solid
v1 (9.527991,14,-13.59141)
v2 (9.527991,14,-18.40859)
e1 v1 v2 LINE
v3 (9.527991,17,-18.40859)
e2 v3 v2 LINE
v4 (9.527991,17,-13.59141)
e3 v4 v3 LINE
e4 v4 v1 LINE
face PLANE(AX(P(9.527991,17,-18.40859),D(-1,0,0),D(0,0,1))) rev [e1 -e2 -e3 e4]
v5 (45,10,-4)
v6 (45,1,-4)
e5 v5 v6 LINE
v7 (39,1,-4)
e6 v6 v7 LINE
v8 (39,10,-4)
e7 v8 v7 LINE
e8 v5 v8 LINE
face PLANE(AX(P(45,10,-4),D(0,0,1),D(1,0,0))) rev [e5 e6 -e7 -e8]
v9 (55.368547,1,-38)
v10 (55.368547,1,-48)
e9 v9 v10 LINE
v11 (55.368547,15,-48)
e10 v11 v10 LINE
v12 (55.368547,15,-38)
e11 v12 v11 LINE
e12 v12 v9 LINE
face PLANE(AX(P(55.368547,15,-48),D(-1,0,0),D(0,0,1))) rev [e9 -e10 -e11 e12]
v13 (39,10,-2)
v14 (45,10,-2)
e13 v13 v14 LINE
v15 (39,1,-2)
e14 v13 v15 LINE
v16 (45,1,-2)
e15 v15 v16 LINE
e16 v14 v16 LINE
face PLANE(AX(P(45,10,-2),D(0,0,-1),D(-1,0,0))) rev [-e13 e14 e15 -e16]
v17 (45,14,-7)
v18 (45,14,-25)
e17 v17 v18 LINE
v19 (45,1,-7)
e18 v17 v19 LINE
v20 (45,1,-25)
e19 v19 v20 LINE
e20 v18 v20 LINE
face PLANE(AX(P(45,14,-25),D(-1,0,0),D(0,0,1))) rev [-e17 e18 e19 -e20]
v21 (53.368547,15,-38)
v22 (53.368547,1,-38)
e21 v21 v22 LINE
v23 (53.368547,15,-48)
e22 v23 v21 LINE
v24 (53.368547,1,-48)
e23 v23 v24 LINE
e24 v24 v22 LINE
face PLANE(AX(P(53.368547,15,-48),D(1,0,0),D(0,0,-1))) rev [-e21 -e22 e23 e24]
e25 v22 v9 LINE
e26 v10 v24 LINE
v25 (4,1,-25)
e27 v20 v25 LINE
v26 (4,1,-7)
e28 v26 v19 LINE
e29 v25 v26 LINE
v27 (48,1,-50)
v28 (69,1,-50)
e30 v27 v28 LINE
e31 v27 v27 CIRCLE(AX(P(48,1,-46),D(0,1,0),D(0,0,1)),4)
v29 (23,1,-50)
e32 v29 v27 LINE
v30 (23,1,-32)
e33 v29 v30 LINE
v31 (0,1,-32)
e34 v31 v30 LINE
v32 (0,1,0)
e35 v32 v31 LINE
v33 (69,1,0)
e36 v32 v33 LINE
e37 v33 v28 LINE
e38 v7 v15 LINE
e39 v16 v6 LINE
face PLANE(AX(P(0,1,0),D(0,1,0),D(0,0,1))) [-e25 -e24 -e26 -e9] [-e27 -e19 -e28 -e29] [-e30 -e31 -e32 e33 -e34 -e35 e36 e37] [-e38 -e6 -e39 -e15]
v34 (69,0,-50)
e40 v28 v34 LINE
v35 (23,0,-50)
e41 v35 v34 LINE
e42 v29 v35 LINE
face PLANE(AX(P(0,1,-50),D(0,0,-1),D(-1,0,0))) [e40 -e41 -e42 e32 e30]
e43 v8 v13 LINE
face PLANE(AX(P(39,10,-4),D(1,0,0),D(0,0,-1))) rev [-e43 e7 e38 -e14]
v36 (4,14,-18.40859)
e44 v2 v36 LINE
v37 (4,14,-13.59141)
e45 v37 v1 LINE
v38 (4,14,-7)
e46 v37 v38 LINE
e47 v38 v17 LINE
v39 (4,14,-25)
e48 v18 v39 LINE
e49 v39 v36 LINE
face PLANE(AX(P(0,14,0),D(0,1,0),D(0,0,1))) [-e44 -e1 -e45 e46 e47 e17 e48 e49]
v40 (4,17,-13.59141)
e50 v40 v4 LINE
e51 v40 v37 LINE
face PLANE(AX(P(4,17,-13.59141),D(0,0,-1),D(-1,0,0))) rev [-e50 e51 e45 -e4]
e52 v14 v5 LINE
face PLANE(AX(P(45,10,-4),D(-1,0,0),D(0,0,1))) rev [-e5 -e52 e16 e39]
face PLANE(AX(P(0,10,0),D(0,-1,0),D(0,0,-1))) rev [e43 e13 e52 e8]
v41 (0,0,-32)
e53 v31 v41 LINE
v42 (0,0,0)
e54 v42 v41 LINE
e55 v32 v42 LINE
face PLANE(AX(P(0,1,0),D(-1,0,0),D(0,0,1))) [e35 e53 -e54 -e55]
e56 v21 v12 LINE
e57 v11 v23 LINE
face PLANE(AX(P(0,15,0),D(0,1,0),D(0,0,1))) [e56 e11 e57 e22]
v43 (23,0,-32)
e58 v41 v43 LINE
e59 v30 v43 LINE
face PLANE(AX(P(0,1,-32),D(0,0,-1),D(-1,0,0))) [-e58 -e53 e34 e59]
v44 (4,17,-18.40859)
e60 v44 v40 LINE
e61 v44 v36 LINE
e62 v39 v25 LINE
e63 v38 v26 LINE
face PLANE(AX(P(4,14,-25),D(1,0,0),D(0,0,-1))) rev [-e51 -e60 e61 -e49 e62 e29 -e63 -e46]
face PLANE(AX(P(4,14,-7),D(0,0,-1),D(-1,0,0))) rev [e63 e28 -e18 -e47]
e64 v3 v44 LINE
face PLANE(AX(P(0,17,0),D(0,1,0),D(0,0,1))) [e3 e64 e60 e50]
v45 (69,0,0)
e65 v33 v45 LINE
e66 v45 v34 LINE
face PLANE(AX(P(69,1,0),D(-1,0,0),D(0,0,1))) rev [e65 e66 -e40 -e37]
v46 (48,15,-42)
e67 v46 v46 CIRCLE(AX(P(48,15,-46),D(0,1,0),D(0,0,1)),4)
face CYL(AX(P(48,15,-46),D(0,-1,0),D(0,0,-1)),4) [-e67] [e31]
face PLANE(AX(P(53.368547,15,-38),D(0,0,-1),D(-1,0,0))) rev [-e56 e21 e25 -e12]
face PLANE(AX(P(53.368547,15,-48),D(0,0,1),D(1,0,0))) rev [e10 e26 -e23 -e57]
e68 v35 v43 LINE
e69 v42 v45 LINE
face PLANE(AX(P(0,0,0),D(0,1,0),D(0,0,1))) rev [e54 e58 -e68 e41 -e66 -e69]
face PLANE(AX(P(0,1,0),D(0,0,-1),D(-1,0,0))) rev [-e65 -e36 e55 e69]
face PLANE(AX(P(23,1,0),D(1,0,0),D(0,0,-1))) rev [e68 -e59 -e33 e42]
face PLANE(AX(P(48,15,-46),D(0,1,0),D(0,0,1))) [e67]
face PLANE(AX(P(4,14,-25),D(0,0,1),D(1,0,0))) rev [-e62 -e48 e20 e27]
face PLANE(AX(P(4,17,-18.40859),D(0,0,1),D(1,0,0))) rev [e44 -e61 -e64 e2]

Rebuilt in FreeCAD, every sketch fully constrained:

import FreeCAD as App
import Part
import Sketcher
from FreeCAD import Vector
Q = App.Units.Quantity


def add_polygon(sketch, points):
    """Adds a closed chain of lines whose ends are joined by coincident constraints."""
    first, n = sketch.GeometryCount, len(points)
    for a, b in zip(points, points[1:] + points[:1]):
        sketch.addGeometry(Part.LineSegment(App.Vector(*a, 0), App.Vector(*b, 0)), False)
    for i in range(n):
        sketch.addConstraint(Sketcher.Constraint("Coincident", first + i, 2, first + (i + 1) % n, 1))

doc = App.newDocument("Part")
body = doc.addObject("PartDesign::Body", "Body")

# Sketch on XZ plane
sketch1 = body.newObject("Sketcher::SketchObject", "Sketch")
sketch1.AttachmentSupport = (doc.getObject("XZ_Plane"), [""])
sketch1.MapMode = "FlatFace"
add_polygon(sketch1, [(0, -32), (0, 0), (69, 0), (69, -50), (23, -50), (23, -32)])  # lines 0-5
sketch1.addConstraint([
    Sketcher.Constraint("Vertical", 0),
    Sketcher.Constraint("Horizontal", 1),
    Sketcher.Constraint("Vertical", 2),
    Sketcher.Constraint("Horizontal", 3),
    Sketcher.Constraint("Vertical", 4),
    Sketcher.Constraint("Horizontal", 5),
    Sketcher.Constraint("Coincident", 0, 2, -1, 1),
    Sketcher.Constraint("DistanceX", 1, 1, 1, 2, Q("69 mm")),
    Sketcher.Constraint("DistanceX", 3, 2, 3, 1, Q("46 mm")),
    Sketcher.Constraint("DistanceY", 0, 1, 0, 2, Q("32 mm")),
    Sketcher.Constraint("DistanceY", 2, 2, 2, 1, Q("50 mm")),
])
pad1 = body.newObject("PartDesign::Pad", "Pad")
pad1.Profile = sketch1
pad1.Length = 1
pad1.Reversed = True

# Sketch on XZ plane
sketch2 = body.newObject("Sketcher::SketchObject", "Sketch001")
sketch2.AttachmentSupport = (doc.getObject("XZ_Plane"), [""])
sketch2.MapMode = "FlatFace"
sketch2.AttachmentOffset = App.Placement(Vector(0, 0, -1), App.Rotation())
add_polygon(sketch2, [(4, -25), (4, -7), (45, -7), (45, -25)])  # lines 0-3
sketch2.addConstraint([
    Sketcher.Constraint("Vertical", 0),
    Sketcher.Constraint("Horizontal", 1),
    Sketcher.Constraint("Vertical", 2),
    Sketcher.Constraint("Horizontal", 3),
    Sketcher.Constraint("DistanceX", 1, 1, 1, 2, Q("41 mm")),
    Sketcher.Constraint("DistanceY", 0, 1, 0, 2, Q("18 mm")),
    Sketcher.Constraint("DistanceX", -1, 1, 0, 2, Q("4 mm")),
    Sketcher.Constraint("DistanceY", 0, 2, -1, 1, Q("7 mm")),
])
pad2 = body.newObject("PartDesign::Pad", "Pad001")
pad2.Profile = sketch2
pad2.Length = 13
pad2.Reversed = True

# Sketch on XZ plane
sketch3 = body.newObject("Sketcher::SketchObject", "Sketch002")
sketch3.AttachmentSupport = (doc.getObject("XZ_Plane"), [""])
sketch3.MapMode = "FlatFace"
sketch3.AttachmentOffset = App.Placement(Vector(0, 0, -14), App.Rotation())
add_polygon(sketch3, [(4, -18.4), (4, -13.6), (9.5, -13.6), (9.5, -18.4)])  # lines 0-3
sketch3.addConstraint([
    Sketcher.Constraint("Vertical", 0),
    Sketcher.Constraint("Horizontal", 1),
    Sketcher.Constraint("Vertical", 2),
    Sketcher.Constraint("Horizontal", 3),
    Sketcher.Constraint("DistanceX", -1, 1, 0, 2, Q("4 mm")),
    Sketcher.Constraint("DistanceX", 1, 1, 1, 2, Q("5.527991 mm")),
    Sketcher.Constraint("DistanceY", 0, 1, 0, 2, Q("4.81718 mm")),
    Sketcher.Constraint("DistanceY", 0, 2, -1, 1, Q("13.59141 mm")),
])
pad3 = body.newObject("PartDesign::Pad", "Pad002")
pad3.Profile = sketch3
pad3.Length = 3
pad3.Reversed = True

# Sketch on XZ plane
sketch4 = body.newObject("Sketcher::SketchObject", "Sketch003")
sketch4.AttachmentSupport = (doc.getObject("XZ_Plane"), [""])
sketch4.MapMode = "FlatFace"
sketch4.AttachmentOffset = App.Placement(Vector(0, 0, -1), App.Rotation())
add_polygon(sketch4, [(39, -4), (39, -2), (45, -2), (45, -4)])  # lines 0-3
sketch4.addConstraint([
    Sketcher.Constraint("Vertical", 0),
    Sketcher.Constraint("Horizontal", 1),
    Sketcher.Constraint("Vertical", 2),
    Sketcher.Constraint("Horizontal", 3),
    Sketcher.Constraint("DistanceX", 1, 1, 1, 2, Q("6 mm")),
    Sketcher.Constraint("DistanceY", 0, 1, 0, 2, Q("2 mm")),
    Sketcher.Constraint("DistanceX", -1, 1, 0, 2, Q("39 mm")),
    Sketcher.Constraint("DistanceY", 0, 2, -1, 1, Q("2 mm")),
])
pad4 = body.newObject("PartDesign::Pad", "Pad003")
pad4.Profile = sketch4
pad4.Length = 9
pad4.Reversed = True

# Sketch on XZ plane
sketch5 = body.newObject("Sketcher::SketchObject", "Sketch004")
sketch5.AttachmentSupport = (doc.getObject("XZ_Plane"), [""])
sketch5.MapMode = "FlatFace"
sketch5.AttachmentOffset = App.Placement(Vector(0, 0, -1), App.Rotation())
sketch5.addGeometry(Part.Circle(Vector(48, -46, 0), Vector(0, 0, 1), 4), False)
sketch5.addConstraint([
    Sketcher.Constraint("Diameter", 0, Q("8 mm")),
    Sketcher.Constraint("DistanceX", -1, 1, 0, 3, Q("48 mm")),
    Sketcher.Constraint("DistanceY", 0, 3, -1, 1, Q("46 mm")),
])
pad5 = body.newObject("PartDesign::Pad", "Pad004")
pad5.Profile = sketch5
pad5.Length = 14
pad5.Reversed = True

# Sketch on XZ plane
sketch6 = body.newObject("Sketcher::SketchObject", "Sketch005")
sketch6.AttachmentSupport = (doc.getObject("XZ_Plane"), [""])
sketch6.MapMode = "FlatFace"
sketch6.AttachmentOffset = App.Placement(Vector(0, 0, -1), App.Rotation())
add_polygon(sketch6, [(53.4, -48), (53.4, -38), (55.4, -38), (55.4, -48)])  # lines 0-3
sketch6.addConstraint([
    Sketcher.Constraint("Vertical", 0),
    Sketcher.Constraint("Horizontal", 1),
    Sketcher.Constraint("Vertical", 2),
    Sketcher.Constraint("Horizontal", 3),
    Sketcher.Constraint("DistanceX", 1, 1, 1, 2, Q("2 mm")),
    Sketcher.Constraint("DistanceY", 0, 1, 0, 2, Q("10 mm")),
    Sketcher.Constraint("DistanceY", 0, 2, -1, 1, Q("38 mm")),
    Sketcher.Constraint("DistanceX", -1, 1, 0, 2, Q("53.368547 mm")),
])
pad6 = body.newObject("PartDesign::Pad", "Pad005")
pad6.Profile = sketch6
pad6.Length = 14
pad6.Reversed = True

doc.recompute()
